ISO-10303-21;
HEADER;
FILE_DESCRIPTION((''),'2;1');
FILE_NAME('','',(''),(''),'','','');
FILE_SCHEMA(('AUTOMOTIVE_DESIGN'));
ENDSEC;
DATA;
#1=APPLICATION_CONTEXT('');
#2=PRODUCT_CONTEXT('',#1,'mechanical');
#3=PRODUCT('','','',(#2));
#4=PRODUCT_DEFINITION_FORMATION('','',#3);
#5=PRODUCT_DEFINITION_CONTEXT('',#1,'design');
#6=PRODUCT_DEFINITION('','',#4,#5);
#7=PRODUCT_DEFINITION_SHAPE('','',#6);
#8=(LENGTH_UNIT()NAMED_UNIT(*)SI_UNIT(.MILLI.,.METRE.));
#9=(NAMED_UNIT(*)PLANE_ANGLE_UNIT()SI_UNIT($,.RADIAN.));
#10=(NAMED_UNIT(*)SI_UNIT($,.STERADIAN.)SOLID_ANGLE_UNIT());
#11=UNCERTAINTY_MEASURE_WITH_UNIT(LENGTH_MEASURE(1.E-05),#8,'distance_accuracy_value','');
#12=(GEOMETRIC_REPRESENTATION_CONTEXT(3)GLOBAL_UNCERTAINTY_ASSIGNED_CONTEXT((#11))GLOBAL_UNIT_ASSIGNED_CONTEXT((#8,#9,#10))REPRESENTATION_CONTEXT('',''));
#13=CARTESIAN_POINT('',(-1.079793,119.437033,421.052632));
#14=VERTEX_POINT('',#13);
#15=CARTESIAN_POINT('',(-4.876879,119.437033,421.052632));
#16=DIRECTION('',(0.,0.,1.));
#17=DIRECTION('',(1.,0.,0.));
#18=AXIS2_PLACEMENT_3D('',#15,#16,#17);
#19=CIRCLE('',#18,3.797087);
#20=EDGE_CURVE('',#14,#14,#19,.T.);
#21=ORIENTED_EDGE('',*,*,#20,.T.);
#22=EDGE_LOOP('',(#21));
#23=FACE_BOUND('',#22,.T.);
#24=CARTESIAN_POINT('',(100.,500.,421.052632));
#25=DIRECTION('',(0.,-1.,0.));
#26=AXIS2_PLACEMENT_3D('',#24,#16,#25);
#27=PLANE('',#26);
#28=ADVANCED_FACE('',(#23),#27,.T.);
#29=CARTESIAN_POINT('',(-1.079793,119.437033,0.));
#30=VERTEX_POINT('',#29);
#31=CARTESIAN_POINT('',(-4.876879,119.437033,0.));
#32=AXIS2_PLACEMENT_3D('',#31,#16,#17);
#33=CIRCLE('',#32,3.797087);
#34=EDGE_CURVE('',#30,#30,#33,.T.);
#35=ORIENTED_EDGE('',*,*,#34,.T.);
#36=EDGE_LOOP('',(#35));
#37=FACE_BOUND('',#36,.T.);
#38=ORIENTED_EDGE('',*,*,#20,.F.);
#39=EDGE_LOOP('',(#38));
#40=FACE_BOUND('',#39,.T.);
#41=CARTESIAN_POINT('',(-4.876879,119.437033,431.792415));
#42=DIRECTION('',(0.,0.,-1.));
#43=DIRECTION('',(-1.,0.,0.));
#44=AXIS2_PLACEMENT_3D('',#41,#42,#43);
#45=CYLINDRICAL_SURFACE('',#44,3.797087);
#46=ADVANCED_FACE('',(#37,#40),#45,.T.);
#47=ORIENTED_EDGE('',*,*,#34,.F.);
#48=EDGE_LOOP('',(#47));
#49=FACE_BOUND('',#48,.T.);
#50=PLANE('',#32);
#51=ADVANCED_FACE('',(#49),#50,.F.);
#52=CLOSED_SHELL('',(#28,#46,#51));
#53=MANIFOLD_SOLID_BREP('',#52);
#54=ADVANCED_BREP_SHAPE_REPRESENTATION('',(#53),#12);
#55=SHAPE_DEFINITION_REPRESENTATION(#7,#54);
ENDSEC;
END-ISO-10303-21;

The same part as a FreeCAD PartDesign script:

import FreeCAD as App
import Part
import Sketcher
from FreeCAD import Vector
Q = App.Units.Quantity

doc = App.newDocument("Part")
params = doc.addObject("Spreadsheet::Sheet", "Params")
for row, (alias, value) in enumerate([
    ("pad1_length", "421.052632 mm"),
], start=1):
    params.set(f"A{row}", alias)
    params.set(f"B{row}", "=" + value)
    params.setAlias(f"B{row}", alias)

body = doc.addObject("PartDesign::Body", "Body")

sketch1 = body.newObject("Sketcher::SketchObject", "Sketch")
sketch1.AttachmentSupport = (doc.getObject("XY_Plane"), [""])
sketch1.MapMode = "FlatFace"
sketch1.addGeometry(Part.Circle(Vector(-4.9, 119.4, 0), Vector(0, 0, 1), 3.8), False)
sketch1.addConstraint(Sketcher.Constraint("Diameter", 0, Q("7.594173 mm")))
sketch1.addConstraint(Sketcher.Constraint("DistanceX", 0, 3, -1, 1, Q("4.876879 mm")))
sketch1.addConstraint(Sketcher.Constraint("DistanceY", -1, 1, 0, 3, Q("119.437033 mm")))
pad1 = body.newObject("PartDesign::Pad", "Pad")
pad1.Profile = sketch1
pad1.setExpression("Length", "Params.pad1_length")

doc.recompute()
